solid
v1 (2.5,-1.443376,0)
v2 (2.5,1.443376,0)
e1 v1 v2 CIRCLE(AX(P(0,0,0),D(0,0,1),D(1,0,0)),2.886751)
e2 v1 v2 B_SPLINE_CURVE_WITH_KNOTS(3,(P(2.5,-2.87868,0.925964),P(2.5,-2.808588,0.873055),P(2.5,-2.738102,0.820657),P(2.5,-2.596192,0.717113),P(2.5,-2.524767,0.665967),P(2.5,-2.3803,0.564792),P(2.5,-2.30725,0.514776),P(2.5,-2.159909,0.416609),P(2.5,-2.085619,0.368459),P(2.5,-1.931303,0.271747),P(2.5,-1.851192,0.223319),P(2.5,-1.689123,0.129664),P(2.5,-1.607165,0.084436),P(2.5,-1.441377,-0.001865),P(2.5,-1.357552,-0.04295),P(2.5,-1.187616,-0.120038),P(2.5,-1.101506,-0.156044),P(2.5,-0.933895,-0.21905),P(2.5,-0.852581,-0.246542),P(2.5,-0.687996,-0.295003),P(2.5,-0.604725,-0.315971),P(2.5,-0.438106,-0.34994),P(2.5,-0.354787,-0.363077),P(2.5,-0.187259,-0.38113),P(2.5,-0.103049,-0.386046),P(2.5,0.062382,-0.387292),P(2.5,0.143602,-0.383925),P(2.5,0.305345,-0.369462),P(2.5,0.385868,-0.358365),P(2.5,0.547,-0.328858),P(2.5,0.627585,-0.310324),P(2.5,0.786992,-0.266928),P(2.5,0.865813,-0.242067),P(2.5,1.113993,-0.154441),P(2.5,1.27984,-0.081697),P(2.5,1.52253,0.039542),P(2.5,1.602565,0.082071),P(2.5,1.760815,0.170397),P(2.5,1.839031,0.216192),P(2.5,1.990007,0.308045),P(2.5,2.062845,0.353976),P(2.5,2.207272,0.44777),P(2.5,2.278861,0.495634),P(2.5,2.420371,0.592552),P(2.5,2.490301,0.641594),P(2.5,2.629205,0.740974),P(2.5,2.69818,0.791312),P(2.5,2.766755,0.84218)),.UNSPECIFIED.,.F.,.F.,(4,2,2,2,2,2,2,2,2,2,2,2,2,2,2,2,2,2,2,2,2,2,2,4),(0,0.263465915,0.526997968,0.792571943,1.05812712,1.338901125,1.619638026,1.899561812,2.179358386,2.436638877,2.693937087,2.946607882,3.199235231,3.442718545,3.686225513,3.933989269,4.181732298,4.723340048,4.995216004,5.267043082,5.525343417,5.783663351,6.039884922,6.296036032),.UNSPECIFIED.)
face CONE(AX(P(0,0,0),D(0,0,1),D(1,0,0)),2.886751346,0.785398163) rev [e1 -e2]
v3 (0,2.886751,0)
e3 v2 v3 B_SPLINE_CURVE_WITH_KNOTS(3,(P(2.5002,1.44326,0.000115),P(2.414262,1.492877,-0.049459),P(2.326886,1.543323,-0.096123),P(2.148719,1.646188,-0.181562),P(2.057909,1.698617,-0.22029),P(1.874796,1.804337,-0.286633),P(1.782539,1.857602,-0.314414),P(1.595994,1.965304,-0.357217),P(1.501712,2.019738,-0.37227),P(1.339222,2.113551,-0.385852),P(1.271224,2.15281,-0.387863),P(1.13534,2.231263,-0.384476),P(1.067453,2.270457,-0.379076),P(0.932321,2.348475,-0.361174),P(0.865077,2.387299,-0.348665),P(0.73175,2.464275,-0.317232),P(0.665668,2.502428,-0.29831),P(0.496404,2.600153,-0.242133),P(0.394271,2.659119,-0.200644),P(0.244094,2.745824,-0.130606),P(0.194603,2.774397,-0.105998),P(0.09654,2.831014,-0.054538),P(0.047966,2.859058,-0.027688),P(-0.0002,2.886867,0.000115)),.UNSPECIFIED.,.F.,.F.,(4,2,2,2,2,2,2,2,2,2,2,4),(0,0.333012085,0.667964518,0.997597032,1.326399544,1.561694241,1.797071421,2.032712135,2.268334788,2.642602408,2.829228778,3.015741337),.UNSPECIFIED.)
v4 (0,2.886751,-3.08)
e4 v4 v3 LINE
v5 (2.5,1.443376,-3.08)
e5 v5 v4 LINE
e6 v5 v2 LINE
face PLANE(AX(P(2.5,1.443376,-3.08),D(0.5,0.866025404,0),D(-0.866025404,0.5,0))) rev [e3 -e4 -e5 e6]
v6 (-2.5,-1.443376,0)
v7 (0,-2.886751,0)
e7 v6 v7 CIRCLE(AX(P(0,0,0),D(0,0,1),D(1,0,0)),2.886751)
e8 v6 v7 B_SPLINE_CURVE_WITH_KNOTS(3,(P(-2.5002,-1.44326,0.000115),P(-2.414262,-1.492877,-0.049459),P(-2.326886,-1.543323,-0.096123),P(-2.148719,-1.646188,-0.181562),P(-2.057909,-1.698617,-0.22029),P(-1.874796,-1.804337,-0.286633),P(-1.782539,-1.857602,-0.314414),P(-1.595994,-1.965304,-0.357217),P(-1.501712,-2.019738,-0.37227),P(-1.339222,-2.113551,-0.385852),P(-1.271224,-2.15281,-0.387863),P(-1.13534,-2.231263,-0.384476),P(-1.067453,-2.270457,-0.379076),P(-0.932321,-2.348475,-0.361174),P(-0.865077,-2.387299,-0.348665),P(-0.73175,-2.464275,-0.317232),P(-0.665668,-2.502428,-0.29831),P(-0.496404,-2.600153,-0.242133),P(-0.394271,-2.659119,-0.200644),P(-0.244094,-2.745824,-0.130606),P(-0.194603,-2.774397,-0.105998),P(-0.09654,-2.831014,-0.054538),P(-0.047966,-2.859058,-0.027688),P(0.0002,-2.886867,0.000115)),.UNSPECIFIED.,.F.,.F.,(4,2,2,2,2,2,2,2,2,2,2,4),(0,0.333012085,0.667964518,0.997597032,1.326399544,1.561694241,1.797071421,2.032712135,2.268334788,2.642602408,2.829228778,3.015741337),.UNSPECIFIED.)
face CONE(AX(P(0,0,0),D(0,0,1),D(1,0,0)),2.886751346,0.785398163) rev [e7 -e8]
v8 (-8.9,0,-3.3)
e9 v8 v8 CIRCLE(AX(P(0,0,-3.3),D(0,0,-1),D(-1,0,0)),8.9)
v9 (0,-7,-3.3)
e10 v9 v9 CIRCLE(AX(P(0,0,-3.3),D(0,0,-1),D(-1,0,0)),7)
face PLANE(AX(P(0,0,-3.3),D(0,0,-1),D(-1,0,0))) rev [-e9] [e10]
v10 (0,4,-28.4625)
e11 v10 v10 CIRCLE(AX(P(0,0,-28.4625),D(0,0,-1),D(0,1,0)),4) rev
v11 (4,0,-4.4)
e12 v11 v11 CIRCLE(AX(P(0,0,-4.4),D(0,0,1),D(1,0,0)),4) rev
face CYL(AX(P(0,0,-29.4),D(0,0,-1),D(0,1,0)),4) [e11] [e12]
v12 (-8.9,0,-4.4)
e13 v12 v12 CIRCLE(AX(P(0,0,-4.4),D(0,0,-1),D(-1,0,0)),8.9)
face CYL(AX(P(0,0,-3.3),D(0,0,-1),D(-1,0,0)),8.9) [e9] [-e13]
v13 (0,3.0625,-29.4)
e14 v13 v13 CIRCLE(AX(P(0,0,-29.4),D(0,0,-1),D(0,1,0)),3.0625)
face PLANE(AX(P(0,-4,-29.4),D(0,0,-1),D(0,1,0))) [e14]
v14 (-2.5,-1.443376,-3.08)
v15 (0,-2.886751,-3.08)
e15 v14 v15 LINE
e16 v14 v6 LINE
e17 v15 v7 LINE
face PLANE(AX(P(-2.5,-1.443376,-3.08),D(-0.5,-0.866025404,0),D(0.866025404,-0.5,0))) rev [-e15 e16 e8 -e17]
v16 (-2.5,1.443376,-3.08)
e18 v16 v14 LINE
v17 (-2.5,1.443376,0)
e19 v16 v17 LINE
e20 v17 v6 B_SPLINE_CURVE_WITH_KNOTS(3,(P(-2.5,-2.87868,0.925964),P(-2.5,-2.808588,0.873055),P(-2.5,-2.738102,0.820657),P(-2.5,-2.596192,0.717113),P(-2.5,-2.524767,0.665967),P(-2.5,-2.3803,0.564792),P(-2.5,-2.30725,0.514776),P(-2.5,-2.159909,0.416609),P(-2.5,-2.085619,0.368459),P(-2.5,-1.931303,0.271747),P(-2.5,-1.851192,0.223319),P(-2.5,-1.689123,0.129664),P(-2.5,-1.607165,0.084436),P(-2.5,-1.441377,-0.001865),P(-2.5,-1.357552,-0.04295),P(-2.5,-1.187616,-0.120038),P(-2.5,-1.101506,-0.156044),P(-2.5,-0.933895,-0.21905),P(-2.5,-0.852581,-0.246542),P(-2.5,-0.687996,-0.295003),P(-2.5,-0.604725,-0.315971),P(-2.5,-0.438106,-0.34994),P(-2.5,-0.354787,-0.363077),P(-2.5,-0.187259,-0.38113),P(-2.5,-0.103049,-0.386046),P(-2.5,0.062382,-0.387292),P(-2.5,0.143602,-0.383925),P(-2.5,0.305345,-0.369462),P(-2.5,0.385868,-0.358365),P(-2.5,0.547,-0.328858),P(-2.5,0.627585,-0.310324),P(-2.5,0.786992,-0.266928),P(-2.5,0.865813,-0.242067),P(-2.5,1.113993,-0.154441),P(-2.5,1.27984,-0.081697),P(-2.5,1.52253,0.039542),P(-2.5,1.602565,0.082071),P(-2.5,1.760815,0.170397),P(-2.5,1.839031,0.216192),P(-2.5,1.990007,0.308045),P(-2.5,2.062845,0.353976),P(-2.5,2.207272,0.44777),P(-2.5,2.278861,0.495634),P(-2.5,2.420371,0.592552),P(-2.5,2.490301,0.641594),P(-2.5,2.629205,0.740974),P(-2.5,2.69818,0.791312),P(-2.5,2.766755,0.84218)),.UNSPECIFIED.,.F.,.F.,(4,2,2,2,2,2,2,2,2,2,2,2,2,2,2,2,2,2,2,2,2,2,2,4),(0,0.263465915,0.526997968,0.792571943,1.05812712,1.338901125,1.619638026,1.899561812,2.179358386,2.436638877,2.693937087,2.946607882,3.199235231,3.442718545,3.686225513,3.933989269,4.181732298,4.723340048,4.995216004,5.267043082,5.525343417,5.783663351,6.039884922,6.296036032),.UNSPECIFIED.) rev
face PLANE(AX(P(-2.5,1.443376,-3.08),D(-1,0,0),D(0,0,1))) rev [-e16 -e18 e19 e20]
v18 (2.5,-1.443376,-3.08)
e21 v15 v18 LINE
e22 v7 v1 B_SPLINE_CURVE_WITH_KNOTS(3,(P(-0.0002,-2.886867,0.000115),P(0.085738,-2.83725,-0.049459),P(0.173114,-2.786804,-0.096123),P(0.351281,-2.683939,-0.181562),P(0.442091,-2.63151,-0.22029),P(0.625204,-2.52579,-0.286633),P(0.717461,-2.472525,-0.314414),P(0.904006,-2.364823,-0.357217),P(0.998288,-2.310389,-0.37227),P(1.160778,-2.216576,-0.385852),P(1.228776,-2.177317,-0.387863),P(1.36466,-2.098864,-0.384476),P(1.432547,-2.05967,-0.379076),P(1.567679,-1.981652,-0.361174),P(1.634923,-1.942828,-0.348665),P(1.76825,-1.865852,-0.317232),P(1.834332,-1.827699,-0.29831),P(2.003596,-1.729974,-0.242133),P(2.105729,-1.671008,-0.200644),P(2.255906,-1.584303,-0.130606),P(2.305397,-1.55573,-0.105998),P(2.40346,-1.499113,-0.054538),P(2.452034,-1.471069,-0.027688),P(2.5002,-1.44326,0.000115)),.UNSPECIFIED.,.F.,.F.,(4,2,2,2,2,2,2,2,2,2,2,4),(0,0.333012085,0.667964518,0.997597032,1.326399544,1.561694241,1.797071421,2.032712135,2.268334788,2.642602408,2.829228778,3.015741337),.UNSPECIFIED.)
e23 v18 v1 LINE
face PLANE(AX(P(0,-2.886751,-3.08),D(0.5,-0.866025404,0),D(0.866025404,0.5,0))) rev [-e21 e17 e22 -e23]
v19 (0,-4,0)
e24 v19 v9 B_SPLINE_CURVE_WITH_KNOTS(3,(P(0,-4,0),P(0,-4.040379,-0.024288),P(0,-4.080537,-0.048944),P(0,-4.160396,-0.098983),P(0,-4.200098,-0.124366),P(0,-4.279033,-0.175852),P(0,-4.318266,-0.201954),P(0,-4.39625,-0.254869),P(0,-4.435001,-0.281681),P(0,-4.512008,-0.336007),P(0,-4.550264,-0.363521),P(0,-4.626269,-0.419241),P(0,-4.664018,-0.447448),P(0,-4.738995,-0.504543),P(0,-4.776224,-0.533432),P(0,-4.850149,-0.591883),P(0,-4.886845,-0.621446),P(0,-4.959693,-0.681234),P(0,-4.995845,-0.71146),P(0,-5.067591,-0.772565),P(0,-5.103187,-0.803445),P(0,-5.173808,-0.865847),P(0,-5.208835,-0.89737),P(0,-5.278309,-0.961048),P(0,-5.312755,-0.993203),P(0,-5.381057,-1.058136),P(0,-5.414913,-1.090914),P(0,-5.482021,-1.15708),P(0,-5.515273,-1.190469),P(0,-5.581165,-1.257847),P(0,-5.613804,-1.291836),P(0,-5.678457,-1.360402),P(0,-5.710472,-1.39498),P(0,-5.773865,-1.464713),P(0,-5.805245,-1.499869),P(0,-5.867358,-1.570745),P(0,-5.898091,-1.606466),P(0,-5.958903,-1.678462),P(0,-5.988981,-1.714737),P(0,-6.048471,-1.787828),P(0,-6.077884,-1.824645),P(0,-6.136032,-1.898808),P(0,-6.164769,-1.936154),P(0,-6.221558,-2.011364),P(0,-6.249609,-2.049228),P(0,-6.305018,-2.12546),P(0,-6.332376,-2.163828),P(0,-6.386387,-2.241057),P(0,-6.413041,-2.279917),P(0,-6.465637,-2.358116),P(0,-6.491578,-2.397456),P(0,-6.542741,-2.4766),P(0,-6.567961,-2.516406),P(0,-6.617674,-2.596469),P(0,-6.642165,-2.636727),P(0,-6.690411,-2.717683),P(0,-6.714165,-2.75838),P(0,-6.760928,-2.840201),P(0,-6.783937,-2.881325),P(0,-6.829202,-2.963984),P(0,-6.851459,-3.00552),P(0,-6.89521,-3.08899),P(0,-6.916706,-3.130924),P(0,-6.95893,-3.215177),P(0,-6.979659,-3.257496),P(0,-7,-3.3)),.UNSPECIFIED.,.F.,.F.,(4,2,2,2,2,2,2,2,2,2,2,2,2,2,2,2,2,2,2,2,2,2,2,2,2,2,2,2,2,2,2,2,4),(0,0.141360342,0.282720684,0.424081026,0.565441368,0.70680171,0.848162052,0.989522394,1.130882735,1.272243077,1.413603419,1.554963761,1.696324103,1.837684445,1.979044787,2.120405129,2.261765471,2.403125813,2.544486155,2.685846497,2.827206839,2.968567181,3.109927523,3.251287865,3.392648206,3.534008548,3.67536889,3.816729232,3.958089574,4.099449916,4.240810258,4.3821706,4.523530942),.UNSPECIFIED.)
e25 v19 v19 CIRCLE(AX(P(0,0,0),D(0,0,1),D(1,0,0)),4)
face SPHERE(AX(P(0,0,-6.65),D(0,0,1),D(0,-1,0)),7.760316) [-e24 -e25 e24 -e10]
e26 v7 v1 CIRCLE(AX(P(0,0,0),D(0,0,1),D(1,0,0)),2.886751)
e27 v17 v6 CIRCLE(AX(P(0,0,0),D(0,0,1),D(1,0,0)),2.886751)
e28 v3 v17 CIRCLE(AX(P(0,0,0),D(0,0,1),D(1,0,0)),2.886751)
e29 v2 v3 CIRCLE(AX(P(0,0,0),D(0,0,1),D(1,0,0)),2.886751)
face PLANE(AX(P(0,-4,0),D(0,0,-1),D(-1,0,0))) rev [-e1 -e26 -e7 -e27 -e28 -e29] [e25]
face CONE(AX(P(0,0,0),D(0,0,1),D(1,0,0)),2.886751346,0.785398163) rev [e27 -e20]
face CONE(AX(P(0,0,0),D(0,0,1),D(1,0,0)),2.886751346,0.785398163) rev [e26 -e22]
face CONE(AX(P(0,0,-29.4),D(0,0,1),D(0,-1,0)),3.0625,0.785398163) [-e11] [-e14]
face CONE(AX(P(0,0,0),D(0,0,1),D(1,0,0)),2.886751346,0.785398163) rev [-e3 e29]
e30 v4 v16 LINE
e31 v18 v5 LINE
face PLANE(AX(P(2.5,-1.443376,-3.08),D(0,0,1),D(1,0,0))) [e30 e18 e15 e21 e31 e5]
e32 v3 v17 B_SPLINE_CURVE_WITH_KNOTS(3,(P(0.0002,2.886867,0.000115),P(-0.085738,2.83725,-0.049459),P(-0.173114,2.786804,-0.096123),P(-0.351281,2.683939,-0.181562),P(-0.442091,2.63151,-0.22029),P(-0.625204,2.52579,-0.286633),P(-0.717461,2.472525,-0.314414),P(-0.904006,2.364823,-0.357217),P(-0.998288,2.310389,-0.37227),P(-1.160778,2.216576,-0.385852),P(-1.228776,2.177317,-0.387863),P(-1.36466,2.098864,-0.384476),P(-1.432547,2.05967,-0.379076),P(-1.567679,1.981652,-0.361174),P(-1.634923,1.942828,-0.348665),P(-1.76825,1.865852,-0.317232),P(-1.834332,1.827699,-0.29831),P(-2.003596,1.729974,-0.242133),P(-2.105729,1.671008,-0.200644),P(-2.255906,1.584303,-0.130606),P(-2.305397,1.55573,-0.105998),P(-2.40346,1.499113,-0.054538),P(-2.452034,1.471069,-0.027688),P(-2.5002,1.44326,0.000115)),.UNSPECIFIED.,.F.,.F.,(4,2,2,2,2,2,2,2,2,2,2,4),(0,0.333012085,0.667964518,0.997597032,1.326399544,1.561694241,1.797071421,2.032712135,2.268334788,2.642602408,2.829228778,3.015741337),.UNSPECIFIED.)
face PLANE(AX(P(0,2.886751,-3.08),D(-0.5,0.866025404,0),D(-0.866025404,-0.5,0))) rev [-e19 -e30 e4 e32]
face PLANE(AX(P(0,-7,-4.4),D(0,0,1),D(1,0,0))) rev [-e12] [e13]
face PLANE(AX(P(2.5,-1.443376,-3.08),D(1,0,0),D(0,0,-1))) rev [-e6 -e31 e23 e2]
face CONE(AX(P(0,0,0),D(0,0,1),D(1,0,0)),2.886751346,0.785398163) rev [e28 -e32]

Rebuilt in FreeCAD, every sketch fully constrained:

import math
import FreeCAD as App
import Part
import Sketcher
from FreeCAD import Vector
Q = App.Units.Quantity


def edges_at(feature, points):
    """Names of the edges that pass closest to the given points."""
    edges = feature.Shape.Edges
    near = lambda p: min(range(len(edges)), key=lambda i: edges[i].distToShape(Part.Vertex(*p))[0])
    return sorted({f"Edge{near(p) + 1}" for p in points})

doc = App.newDocument("Part")
body = doc.addObject("PartDesign::Body", "Body")

# Sketch on YZ plane
sketch1 = body.newObject("Sketcher::SketchObject", "Sketch")
sketch1.AttachmentSupport = (doc.getObject("YZ_Plane"), [""])
sketch1.MapMode = "FlatFace"
sketch1.addGeometry([
    Part.LineSegment(Vector(4, -4.4, 0), Vector(0, -4.4, 0)),
    Part.LineSegment(Vector(0, -4.4, 0), Vector(0, -29.4, 0)),
    Part.LineSegment(Vector(0, -29.4, 0), Vector(4, -29.4, 0)),
    Part.LineSegment(Vector(4, -29.4, 0), Vector(4, -4.4, 0)),
], False)
sketch1.addConstraint([
    Sketcher.Constraint("Coincident", 0, 2, 1, 1),
    Sketcher.Constraint("Coincident", 1, 2, 2, 1),
    Sketcher.Constraint("Coincident", 2, 2, 3, 1),
    Sketcher.Constraint("Coincident", 3, 2, 0, 1),
    Sketcher.Constraint("Horizontal", 0),
    Sketcher.Constraint("Vertical", 1),
    Sketcher.Constraint("Horizontal", 2),
    Sketcher.Constraint("Vertical", 3),
    Sketcher.Constraint("PointOnObject", 0, 2, -2),
    Sketcher.Constraint("DistanceX", 0, 2, 0, 1, 4.0),
    Sketcher.Constraint("DistanceY", 1, 2, 1, 1, 25.0),
    Sketcher.Constraint("DistanceY", 0, 2, -1, 1, 4.4),
])
revolution = body.newObject("PartDesign::Revolution", "Revolution")
revolution.Profile = sketch1
revolution.ReferenceAxis = (sketch1, ["V_Axis"])
revolution.Angle = 360
doc.recompute()

chamfer = body.newObject("PartDesign::Chamfer", "Chamfer")
chamfer.Base = (revolution, edges_at(revolution, [(0, -4, -29.4)]))
chamfer.Size = 0.9375

# Sketch on YZ plane
sketch2 = body.newObject("Sketcher::SketchObject", "Sketch001")
sketch2.AttachmentSupport = (doc.getObject("YZ_Plane"), [""])
sketch2.MapMode = "FlatFace"
sketch2.addGeometry([
    Part.LineSegment(Vector(7, -4.4, 0), Vector(7, -3.3, 0)),  # 0
    Part.ArcOfCircle(Part.Circle(Vector(0, -6.7, 0), Vector(0, 0, 1), 7.8), math.radians(26), math.radians(59)),  # 1
    Part.LineSegment(Vector(4, 0, 0), Vector(0, 0, 0)),  # 2
    Part.LineSegment(Vector(0, 0, 0), Vector(0, -4.4, 0)),  # 3
    Part.LineSegment(Vector(0, -4.4, 0), Vector(7, -4.4, 0)),  # 4
], False)
sketch2.addConstraint([
    Sketcher.Constraint("Coincident", 0, 2, 1, 1),
    Sketcher.Constraint("Coincident", 1, 2, 2, 1),
    Sketcher.Constraint("Coincident", 2, 2, 3, 1),
    Sketcher.Constraint("Coincident", 3, 2, 4, 1),
    Sketcher.Constraint("Coincident", 4, 2, 0, 1),
    Sketcher.Constraint("Vertical", 0),
    Sketcher.Constraint("Horizontal", 2),
    Sketcher.Constraint("Vertical", 3),
    Sketcher.Constraint("Horizontal", 4),
    Sketcher.Constraint("Coincident", 2, 2, -1, 1),
    Sketcher.Constraint("PointOnObject", 1, 3, -2),
    Sketcher.Constraint("DistanceX", 2, 2, 2, 1, 4.0),
    Sketcher.Constraint("DistanceX", 4, 1, 4, 2, 7.0),
    Sketcher.Constraint("DistanceY", 0, 1, 0, 2, 1.1),
    Sketcher.Constraint("DistanceY", 3, 2, 3, 1, 4.4),
])
revolution2 = body.newObject("PartDesign::Revolution", "Revolution001")
revolution2.Profile = sketch2
revolution2.ReferenceAxis = (sketch2, ["V_Axis"])
revolution2.Angle = 360

# Sketch on XY plane
sketch3 = body.newObject("Sketcher::SketchObject", "Sketch002")
sketch3.AttachmentSupport = (doc.getObject("XY_Plane"), [""])
sketch3.MapMode = "FlatFace"
sketch3.AttachmentOffset = App.Placement(Vector(0, 0, -4.4), App.Rotation())
sketch3.addGeometry(Part.Circle(Vector(0, 0, 0), Vector(0, 0, 1), 9), False)
sketch3.addConstraint([
    Sketcher.Constraint("Coincident", 0, 3, -1, 1),
    Sketcher.Constraint("Diameter", 0, 17.8),
])
pad1 = body.newObject("PartDesign::Pad", "Pad")
pad1.Profile = sketch3
pad1.Length = 1.1

# Sketch on XY plane
sketch4 = body.newObject("Sketcher::SketchObject", "Sketch003")
sketch4.AttachmentSupport = (doc.getObject("XY_Plane"), [""])
sketch4.MapMode = "FlatFace"
sketch4.addGeometry([
    Part.LineSegment(Vector(2.5, -1.4, 0), Vector(2.5, 1.4, 0)),  # 0
    Part.LineSegment(Vector(2.5, 1.4, 0), Vector(0, 2.9, 0)),  # 1
    Part.LineSegment(Vector(0, 2.9, 0), Vector(-2.5, 1.4, 0)),  # 2
    Part.LineSegment(Vector(-2.5, 1.4, 0), Vector(-2.5, -1.4, 0)),  # 3
    Part.LineSegment(Vector(-2.5, -1.4, 0), Vector(0, -2.9, 0)),  # 4
    Part.LineSegment(Vector(0, -2.9, 0), Vector(2.5, -1.4, 0)),  # 5
], False)
sketch4.addConstraint([
    Sketcher.Constraint("Coincident", 0, 2, 1, 1),
    Sketcher.Constraint("Coincident", 1, 2, 2, 1),
    Sketcher.Constraint("Coincident", 2, 2, 3, 1),
    Sketcher.Constraint("Coincident", 3, 2, 4, 1),
    Sketcher.Constraint("Coincident", 4, 2, 5, 1),
    Sketcher.Constraint("Coincident", 5, 2, 0, 1),
    Sketcher.Constraint("Vertical", 0),
    Sketcher.Constraint("Vertical", 3),
    Sketcher.Constraint("Symmetric", 0, 2, 3, 2, -1, 1),
    Sketcher.Constraint("Symmetric", 1, 2, 4, 2, -1, 1),
    Sketcher.Constraint("PointOnObject", 1, 2, -2),
    Sketcher.Constraint("Parallel", 2, 5),
    Sketcher.Constraint("Horizontal", 0, 2, 2, 2),
    Sketcher.Constraint("Angle", 1, Q("150 deg")),
    Sketcher.Constraint("DistanceX", 2, 2, 0, 2, 5.0),
    Sketcher.Constraint("DistanceY", 0, 1, 0, 2, 2.886751),
])
pocket1 = body.newObject("PartDesign::Pocket", "Pocket")
pocket1.Profile = sketch4
pocket1.Length = 3.08

# Sketch on YZ plane
sketch5 = body.newObject("Sketcher::SketchObject", "Sketch004")
sketch5.AttachmentSupport = (doc.getObject("YZ_Plane"), [""])
sketch5.MapMode = "FlatFace"
sketch5.addGeometry([
    Part.LineSegment(Vector(0, 0, 0), Vector(-2.9, 0, 0)),
    Part.LineSegment(Vector(-2.9, 0, 0), Vector(0, -2.9, 0)),
    Part.LineSegment(Vector(0, -2.9, 0), Vector(0, 0, 0)),
], False)
sketch5.addConstraint([
    Sketcher.Constraint("Coincident", 0, 2, 1, 1),
    Sketcher.Constraint("Coincident", 1, 2, 2, 1),
    Sketcher.Constraint("Coincident", 2, 2, 0, 1),
    Sketcher.Constraint("Horizontal", 0),
    Sketcher.Constraint("Vertical", 2),
    Sketcher.Constraint("Coincident", 2, 2, -1, 1),
    Sketcher.Constraint("Equal", 0, 2),
    Sketcher.Constraint("DistanceX", 0, 2, 0, 1, 2.886751),
])
groove = body.newObject("PartDesign::Groove", "Groove")
groove.Profile = sketch5
groove.ReferenceAxis = (sketch5, ["V_Axis"])
groove.Angle = 360

doc.recompute()
